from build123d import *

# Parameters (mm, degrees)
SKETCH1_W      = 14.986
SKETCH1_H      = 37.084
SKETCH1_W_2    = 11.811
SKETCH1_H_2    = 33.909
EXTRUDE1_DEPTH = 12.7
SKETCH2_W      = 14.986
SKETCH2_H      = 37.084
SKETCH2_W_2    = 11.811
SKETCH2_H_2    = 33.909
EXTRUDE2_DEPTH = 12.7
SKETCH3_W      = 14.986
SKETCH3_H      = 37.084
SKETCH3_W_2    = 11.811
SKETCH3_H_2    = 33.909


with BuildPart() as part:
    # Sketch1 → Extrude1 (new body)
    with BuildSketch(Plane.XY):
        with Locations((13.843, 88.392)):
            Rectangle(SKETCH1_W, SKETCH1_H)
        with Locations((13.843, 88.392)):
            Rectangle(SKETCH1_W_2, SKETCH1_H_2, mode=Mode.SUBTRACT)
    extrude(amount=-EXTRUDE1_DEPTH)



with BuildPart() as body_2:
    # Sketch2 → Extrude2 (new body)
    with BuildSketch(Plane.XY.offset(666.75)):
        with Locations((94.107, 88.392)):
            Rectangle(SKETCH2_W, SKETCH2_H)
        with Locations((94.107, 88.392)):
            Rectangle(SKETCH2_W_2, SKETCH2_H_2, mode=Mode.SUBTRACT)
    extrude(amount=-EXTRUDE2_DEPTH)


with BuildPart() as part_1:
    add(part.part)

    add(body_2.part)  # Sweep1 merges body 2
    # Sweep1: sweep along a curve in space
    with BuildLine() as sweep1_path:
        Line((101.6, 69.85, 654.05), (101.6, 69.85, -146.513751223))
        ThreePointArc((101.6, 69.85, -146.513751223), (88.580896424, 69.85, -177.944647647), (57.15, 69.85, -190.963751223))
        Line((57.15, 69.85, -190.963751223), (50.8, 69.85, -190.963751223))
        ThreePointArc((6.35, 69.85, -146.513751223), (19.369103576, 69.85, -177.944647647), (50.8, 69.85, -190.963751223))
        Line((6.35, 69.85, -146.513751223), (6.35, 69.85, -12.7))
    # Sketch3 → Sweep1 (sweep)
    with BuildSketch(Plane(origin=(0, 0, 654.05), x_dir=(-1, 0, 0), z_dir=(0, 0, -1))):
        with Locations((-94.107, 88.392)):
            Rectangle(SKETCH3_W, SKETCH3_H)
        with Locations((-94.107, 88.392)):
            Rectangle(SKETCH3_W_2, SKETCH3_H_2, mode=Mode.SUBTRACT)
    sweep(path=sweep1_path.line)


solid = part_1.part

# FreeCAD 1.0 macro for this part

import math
import FreeCAD as App
import Part
import Sketcher
from FreeCAD import Vector
Q = App.Units.Quantity


def add_polygon(sketch, points):
    """Adds a closed chain of lines whose ends are joined by coincident constraints."""
    first, n = sketch.GeometryCount, len(points)
    for a, b in zip(points, points[1:] + points[:1]):
        sketch.addGeometry(Part.LineSegment(App.Vector(*a, 0), App.Vector(*b, 0)), False)
    for i in range(n):
        sketch.addConstraint(Sketcher.Constraint("Coincident", first + i, 2, first + (i + 1) % n, 1))

doc = App.newDocument("Part")
body = doc.addObject("PartDesign::Body", "Body")

# Sketch on XY plane
sketch1 = body.newObject("Sketcher::SketchObject", "Sketch")
sketch1.AttachmentSupport = (doc.getObject("XY_Plane"), [""])
sketch1.MapMode = "FlatFace"
add_polygon(sketch1, [(6, 107), (6, 70), (21, 70), (21, 107)])  # lines 0-3
add_polygon(sketch1, [(20, 71), (8, 71), (8, 105), (20, 105)])  # lines 4-7
sketch1.addConstraint([
    Sketcher.Constraint("Vertical", 0),
    Sketcher.Constraint("Horizontal", 1),
    Sketcher.Constraint("Vertical", 2),
    Sketcher.Constraint("Horizontal", 3),
    Sketcher.Constraint("Horizontal", 4),
    Sketcher.Constraint("Vertical", 5),
    Sketcher.Constraint("Horizontal", 6),
    Sketcher.Constraint("Vertical", 7),
    Sketcher.Constraint("DistanceX", 1, 1, 1, 2, Q("0.59 in")),
    Sketcher.Constraint("DistanceY", 0, 2, 0, 1, Q("1.46 in")),
    Sketcher.Constraint("DistanceX", 4, 2, 4, 1, Q("0.465 in")),
    Sketcher.Constraint("DistanceY", 5, 1, 5, 2, Q("1.335 in")),
    Sketcher.Constraint("DistanceX", -1, 1, 0, 2, Q("0.25 in")),
    Sketcher.Constraint("DistanceY", -1, 1, 0, 2, Q("2.75 in")),
    Sketcher.Constraint("DistanceX", -1, 1, 4, 2, Q("0.3125 in")),
    Sketcher.Constraint("DistanceY", -1, 1, 4, 2, Q("2.8125 in")),
])
pad1 = body.newObject("PartDesign::Pad", "Pad")
pad1.Profile = sketch1
pad1.Length = Q("0.5 in")
pad1.Reversed = True
body2 = doc.addObject("PartDesign::Body", "Body001")

# Sketch on XY plane
sketch2 = body2.newObject("Sketcher::SketchObject", "Sketch001")
sketch2.AttachmentSupport = (doc.getObject("XY_Plane001"), [""])
sketch2.MapMode = "FlatFace"
sketch2.AttachmentOffset = App.Placement(Vector(0, 0, 26.25 * 25.4), App.Rotation())
add_polygon(sketch2, [(87, 107), (87, 70), (102, 70), (102, 107)])  # lines 0-3
add_polygon(sketch2, [(100, 71), (88, 71), (88, 105), (100, 105)])  # lines 4-7
sketch2.addConstraint([
    Sketcher.Constraint("Vertical", 0),
    Sketcher.Constraint("Horizontal", 1),
    Sketcher.Constraint("Vertical", 2),
    Sketcher.Constraint("Horizontal", 3),
    Sketcher.Constraint("Horizontal", 4),
    Sketcher.Constraint("Vertical", 5),
    Sketcher.Constraint("Horizontal", 6),
    Sketcher.Constraint("Vertical", 7),
    Sketcher.Constraint("DistanceX", -1, 1, 1, 2, Q("4 in")),
    Sketcher.Constraint("DistanceX", 1, 1, 1, 2, Q("0.59 in")),
    Sketcher.Constraint("DistanceY", 0, 2, 0, 1, Q("1.46 in")),
    Sketcher.Constraint("DistanceX", 4, 2, 4, 1, Q("0.465 in")),
    Sketcher.Constraint("DistanceY", 5, 1, 5, 2, Q("1.335 in")),
    Sketcher.Constraint("DistanceY", -1, 1, 0, 2, Q("2.75 in")),
    Sketcher.Constraint("DistanceY", -1, 1, 4, 2, Q("2.8125 in")),
    Sketcher.Constraint("DistanceX", -1, 1, 6, 2, Q("3.9375 in")),
])
pad2 = body2.newObject("PartDesign::Pad", "Pad001")
pad2.Profile = sketch2
pad2.Length = Q("0.5 in")
pad2.Reversed = True
body.AllowCompound = True
doc.recompute()

boolean = body.newObject("PartDesign::Boolean", "Boolean")
boolean.Type = "Fuse"
boolean.addObjects([body2])

# Sketch on XY plane
sketch3 = body.newObject("Sketcher::SketchObject", "Sketch002")
sketch3.AttachmentSupport = (doc.getObject("XY_Plane"), [""])
sketch3.MapMode = "FlatFace"
sketch3.AttachmentOffset = App.Placement(Vector(0, 0, 25.75 * 25.4), App.Rotation())
add_polygon(sketch3, [(102, 107), (102, 70), (87, 70), (87, 107)])  # lines 0-3
add_polygon(sketch3, [(88, 71), (100, 71), (100, 105), (88, 105)])  # lines 4-7
sketch3.addConstraint([
    Sketcher.Constraint("Vertical", 0),
    Sketcher.Constraint("Horizontal", 1),
    Sketcher.Constraint("Vertical", 2),
    Sketcher.Constraint("Horizontal", 3),
    Sketcher.Constraint("Horizontal", 4),
    Sketcher.Constraint("Vertical", 5),
    Sketcher.Constraint("Horizontal", 6),
    Sketcher.Constraint("Vertical", 7),
    Sketcher.Constraint("DistanceX", -1, 1, 0, 2, Q("4 in")),
    Sketcher.Constraint("DistanceX", 1, 2, 1, 1, Q("0.59 in")),
    Sketcher.Constraint("DistanceY", 0, 2, 0, 1, Q("1.46 in")),
    Sketcher.Constraint("DistanceX", 4, 1, 4, 2, Q("0.465 in")),
    Sketcher.Constraint("DistanceY", 5, 1, 5, 2, Q("1.335 in")),
    Sketcher.Constraint("DistanceY", -1, 1, 0, 2, Q("2.75 in")),
    Sketcher.Constraint("DistanceX", -1, 1, 4, 2, Q("3.9375 in")),
    Sketcher.Constraint("DistanceY", -1, 1, 4, 2, Q("2.8125 in")),
])

# Sketch on XZ plane
sketch4 = body.newObject("Sketcher::SketchObject", "Sketch003")
sketch4.AttachmentSupport = (doc.getObject("XZ_Plane"), [""])
sketch4.MapMode = "FlatFace"
sketch4.AttachmentOffset = App.Placement(Vector(0, 0, -2.75 * 25.4), App.Rotation())
sketch4.addGeometry([
    Part.LineSegment(Vector(102, 654, 0), Vector(102, -147, 0)),  # 0
    Part.ArcOfCircle(Part.Circle(Vector(57, -147, 0), Vector(0, 0, 1), 44), math.radians(-90), math.radians(0)),  # 1
    Part.LineSegment(Vector(57, -191, 0), Vector(51, -191, 0)),  # 2
    Part.ArcOfCircle(Part.Circle(Vector(51, -147, 0), Vector(0, 0, 1), 44), math.radians(180), math.radians(270)),  # 3
    Part.LineSegment(Vector(6, -147, 0), Vector(6, -13, 0)),  # 4
], False)
sketch4.addConstraint([
    Sketcher.Constraint("Tangent", 0, 2, 1, 2),
    Sketcher.Constraint("Tangent", 1, 1, 2, 1),
    Sketcher.Constraint("Tangent", 2, 2, 3, 2),
    Sketcher.Constraint("Tangent", 3, 1, 4, 1),
    Sketcher.Constraint("Vertical", 0),
    Sketcher.Constraint("Horizontal", 2),
    Sketcher.Constraint("Vertical", 4),
    Sketcher.Constraint("Equal", 1, 3),
    Sketcher.Constraint("Radius", 1, Q("1.75 in")),
    Sketcher.Constraint("DistanceX", -1, 1, 3, 3, Q("2 in")),
    Sketcher.Constraint("DistanceX", -1, 1, 0, 1, Q("4 in")),
    Sketcher.Constraint("DistanceY", 4, 2, -1, 1, Q("0.5 in")),
    Sketcher.Constraint("DistanceY", -1, 1, 0, 1, Q("25.75 in")),
    Sketcher.Constraint("DistanceY", 0, 2, 0, 1, Q("800.563751 mm")),
])
doc.recompute()

additivepipe = body.newObject("PartDesign::AdditivePipe", "AdditivePipe")
additivepipe.Profile = sketch3
additivepipe.Spine = (sketch4, ["Edge1", "Edge2", "Edge3", "Edge4", "Edge5"])

doc.recompute()
